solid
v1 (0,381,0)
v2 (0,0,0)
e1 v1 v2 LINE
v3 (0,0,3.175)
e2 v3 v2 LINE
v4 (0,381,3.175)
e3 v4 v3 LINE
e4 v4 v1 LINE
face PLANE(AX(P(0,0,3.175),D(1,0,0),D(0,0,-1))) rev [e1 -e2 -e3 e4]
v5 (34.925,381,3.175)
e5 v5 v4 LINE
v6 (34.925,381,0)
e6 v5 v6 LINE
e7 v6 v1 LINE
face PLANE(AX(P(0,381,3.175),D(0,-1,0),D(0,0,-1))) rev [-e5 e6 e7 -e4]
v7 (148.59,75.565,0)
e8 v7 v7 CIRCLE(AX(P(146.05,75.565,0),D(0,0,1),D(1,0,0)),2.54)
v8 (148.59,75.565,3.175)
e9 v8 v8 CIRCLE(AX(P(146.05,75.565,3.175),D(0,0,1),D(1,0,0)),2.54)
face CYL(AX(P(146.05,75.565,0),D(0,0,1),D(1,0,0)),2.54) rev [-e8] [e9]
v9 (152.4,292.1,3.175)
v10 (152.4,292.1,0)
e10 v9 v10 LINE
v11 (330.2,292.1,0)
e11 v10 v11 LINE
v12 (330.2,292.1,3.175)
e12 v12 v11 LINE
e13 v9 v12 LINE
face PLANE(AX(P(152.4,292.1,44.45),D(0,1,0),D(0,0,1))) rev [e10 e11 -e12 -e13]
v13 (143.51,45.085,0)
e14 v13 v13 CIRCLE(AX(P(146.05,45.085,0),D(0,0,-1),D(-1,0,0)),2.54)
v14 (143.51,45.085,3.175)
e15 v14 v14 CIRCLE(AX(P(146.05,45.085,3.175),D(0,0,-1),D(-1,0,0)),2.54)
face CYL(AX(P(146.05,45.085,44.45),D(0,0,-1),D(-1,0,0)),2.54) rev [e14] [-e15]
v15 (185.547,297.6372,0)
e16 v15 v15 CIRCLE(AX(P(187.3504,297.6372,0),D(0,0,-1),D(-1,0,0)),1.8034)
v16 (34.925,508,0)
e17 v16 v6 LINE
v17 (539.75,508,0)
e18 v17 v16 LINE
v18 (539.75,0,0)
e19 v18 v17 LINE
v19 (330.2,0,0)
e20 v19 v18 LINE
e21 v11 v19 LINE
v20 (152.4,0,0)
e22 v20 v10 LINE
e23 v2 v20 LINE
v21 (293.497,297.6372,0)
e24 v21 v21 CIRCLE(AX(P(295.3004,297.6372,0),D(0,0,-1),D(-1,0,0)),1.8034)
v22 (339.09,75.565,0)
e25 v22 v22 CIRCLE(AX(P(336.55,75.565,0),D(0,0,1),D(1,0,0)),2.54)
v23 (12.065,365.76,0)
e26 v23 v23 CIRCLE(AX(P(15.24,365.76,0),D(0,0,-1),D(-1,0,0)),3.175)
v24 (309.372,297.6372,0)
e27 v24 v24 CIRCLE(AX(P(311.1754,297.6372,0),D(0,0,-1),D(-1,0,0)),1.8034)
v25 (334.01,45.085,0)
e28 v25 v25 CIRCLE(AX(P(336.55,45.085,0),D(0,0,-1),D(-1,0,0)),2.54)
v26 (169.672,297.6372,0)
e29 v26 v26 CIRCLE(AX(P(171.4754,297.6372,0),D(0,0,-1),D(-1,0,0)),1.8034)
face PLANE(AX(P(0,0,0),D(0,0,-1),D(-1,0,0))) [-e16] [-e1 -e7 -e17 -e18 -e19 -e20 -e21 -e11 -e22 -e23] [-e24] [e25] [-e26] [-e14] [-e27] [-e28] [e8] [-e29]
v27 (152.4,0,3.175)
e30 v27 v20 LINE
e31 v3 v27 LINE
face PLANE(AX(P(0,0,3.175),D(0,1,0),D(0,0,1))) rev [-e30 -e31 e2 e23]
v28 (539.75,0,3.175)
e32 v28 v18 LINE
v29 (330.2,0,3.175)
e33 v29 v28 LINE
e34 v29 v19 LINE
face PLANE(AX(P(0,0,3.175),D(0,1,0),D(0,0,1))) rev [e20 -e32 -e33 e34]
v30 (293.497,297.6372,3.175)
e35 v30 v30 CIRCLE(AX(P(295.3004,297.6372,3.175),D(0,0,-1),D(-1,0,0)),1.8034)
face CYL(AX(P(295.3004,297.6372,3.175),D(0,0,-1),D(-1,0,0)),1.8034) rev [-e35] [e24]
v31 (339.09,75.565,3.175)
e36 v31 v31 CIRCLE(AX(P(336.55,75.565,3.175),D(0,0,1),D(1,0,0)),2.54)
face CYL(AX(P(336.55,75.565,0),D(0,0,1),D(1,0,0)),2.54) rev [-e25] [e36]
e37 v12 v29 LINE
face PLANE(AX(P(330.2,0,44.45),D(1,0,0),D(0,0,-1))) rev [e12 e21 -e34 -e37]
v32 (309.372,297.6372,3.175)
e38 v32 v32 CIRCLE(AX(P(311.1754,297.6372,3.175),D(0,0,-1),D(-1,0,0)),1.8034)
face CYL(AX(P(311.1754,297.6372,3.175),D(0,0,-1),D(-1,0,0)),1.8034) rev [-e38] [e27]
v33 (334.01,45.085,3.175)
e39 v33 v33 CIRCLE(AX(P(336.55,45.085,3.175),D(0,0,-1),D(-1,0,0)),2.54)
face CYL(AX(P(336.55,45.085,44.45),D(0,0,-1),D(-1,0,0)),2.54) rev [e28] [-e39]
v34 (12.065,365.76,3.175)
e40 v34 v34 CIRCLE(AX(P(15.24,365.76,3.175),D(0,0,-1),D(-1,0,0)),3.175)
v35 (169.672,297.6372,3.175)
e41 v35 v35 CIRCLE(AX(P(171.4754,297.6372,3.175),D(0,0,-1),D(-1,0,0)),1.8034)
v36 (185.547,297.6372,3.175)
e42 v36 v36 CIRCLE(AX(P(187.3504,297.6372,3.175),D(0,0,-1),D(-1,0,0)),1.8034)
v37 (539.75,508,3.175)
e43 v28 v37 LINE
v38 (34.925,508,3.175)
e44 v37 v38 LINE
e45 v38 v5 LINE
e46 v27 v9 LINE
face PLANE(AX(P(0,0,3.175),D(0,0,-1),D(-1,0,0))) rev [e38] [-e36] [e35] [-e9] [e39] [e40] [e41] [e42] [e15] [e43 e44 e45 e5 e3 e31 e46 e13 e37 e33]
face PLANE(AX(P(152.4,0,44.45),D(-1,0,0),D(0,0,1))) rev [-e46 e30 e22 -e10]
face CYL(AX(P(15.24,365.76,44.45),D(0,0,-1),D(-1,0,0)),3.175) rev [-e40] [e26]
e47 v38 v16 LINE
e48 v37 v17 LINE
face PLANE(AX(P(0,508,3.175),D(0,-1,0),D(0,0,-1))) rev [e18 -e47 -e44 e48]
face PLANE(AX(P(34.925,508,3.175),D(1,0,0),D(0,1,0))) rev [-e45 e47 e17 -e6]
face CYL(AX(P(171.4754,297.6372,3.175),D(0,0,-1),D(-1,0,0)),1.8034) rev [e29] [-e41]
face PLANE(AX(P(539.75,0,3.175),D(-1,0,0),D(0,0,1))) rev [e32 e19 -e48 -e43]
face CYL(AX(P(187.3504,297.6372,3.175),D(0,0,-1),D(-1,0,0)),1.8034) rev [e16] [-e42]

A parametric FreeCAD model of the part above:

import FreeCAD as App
import Part
import Sketcher

V = App.Vector
Q = App.Units.Quantity

doc = App.newDocument("Part")
body = doc.addObject("PartDesign::Body", "Body")

sketch1 = doc.addObject("Sketcher::SketchObject", "Sketch")
body.addObject(sketch1)
sketch1.AttachmentSupport = (doc.XY_Plane, [""])
sketch1.MapMode = "FlatFace"
sketch1.addGeometry([
    Part.LineSegment(V(0, 508, 0), V(0, 0, 0)),
    Part.LineSegment(V(0, 0, 0), V(540, 0, 0)),
    Part.LineSegment(V(540, 0, 0), V(540, 508, 0)),
    Part.LineSegment(V(540, 508, 0), V(0, 508, 0)),
], False)
sketch1.addConstraint([
    Sketcher.Constraint("Coincident", 0, 2, 1, 1),
    Sketcher.Constraint("Coincident", 1, 2, 2, 1),
    Sketcher.Constraint("Coincident", 2, 2, 3, 1),
    Sketcher.Constraint("Coincident", 3, 2, 0, 1),
    Sketcher.Constraint("Vertical", 0),
    Sketcher.Constraint("Horizontal", 1),
    Sketcher.Constraint("Vertical", 2),
    Sketcher.Constraint("Horizontal", 3),
    Sketcher.Constraint("Coincident", 0, 2, -1, 1),
    Sketcher.Constraint("DistanceY", 0, 2, 0, 1, Q("20 in")),
    Sketcher.Constraint("DistanceX", 1, 1, 1, 2, Q("21.25 in")),
])
pad1 = doc.addObject("PartDesign::Pad", "Pad")
body.addObject(pad1)
pad1.Profile = sketch1
pad1.Length = Q("0.125 in")

sketch2 = doc.addObject("Sketcher::SketchObject", "Sketch001")
body.addObject(sketch2)
sketch2.AttachmentSupport = (doc.XY_Plane, [""])
sketch2.MapMode = "FlatFace"
sketch2.addGeometry([
    Part.Circle(V(336.6, 45.1, 0), V(0, 0, 1), 2.5),
    Part.Circle(V(146.1, 45.1, 0), V(0, 0, 1), 2.5),
    Part.Circle(V(15.2, 365.8, 0), V(0, 0, 1), 3.2),
    Part.LineSegment(V(330.2, 292.1, 0), V(330.2, 0, 0)),
    Part.LineSegment(V(330.2, 0, 0), V(152.4, 0, 0)),
    Part.LineSegment(V(152.4, 0, 0), V(152.4, 292.1, 0)),
    Part.LineSegment(V(152.4, 292.1, 0), V(330.2, 292.1, 0)),
], False)
sketch2.addConstraint([
    Sketcher.Constraint("Coincident", 3, 2, 4, 1),
    Sketcher.Constraint("Coincident", 4, 2, 5, 1),
    Sketcher.Constraint("Coincident", 5, 2, 6, 1),
    Sketcher.Constraint("Coincident", 6, 2, 3, 1),
    Sketcher.Constraint("Vertical", 3),
    Sketcher.Constraint("Horizontal", 4),
    Sketcher.Constraint("Vertical", 5),
    Sketcher.Constraint("Horizontal", 6),
    Sketcher.Constraint("Equal", 0, 1),
    Sketcher.Constraint("PointOnObject", 3, 2, -1),
    Sketcher.Constraint("Horizontal", 0, 3, 1, 3),
    Sketcher.Constraint("Diameter", 0, Q("0.2 in")),
    Sketcher.Constraint("Diameter", 2, Q("0.25 in")),
    Sketcher.Constraint("DistanceX", 4, 2, 4, 1, Q("7 in")),
    Sketcher.Constraint("DistanceY", 3, 2, 3, 1, Q("11.5 in")),
    Sketcher.Constraint("DistanceX", -1, 1, 3, 2, Q("13 in")),
    Sketcher.Constraint("DistanceX", -1, 1, 2, 3, Q("0.6 in")),
    Sketcher.Constraint("DistanceY", -1, 1, 2, 3, Q("14.4 in")),
    Sketcher.Constraint("DistanceX", 1, 3, 0, 3, Q("7.5 in")),
    Sketcher.Constraint("DistanceX", -1, 1, 0, 3, Q("13.25 in")),
    Sketcher.Constraint("DistanceY", -1, 1, 0, 3, Q("1.775 in")),
])
pocket1 = doc.addObject("PartDesign::Pocket", "Pocket")
body.addObject(pocket1)
pocket1.Profile = sketch2
pocket1.Length = Q("1.75 in")
pocket1.Reversed = True

sketch3 = doc.addObject("Sketcher::SketchObject", "Sketch002")
body.addObject(sketch3)
sketch3.AttachmentSupport = (doc.XY_Plane, [""])
sketch3.MapMode = "FlatFace"
sketch3.addGeometry([
    Part.LineSegment(V(35, 508, 0), V(35, 381, 0)),
    Part.LineSegment(V(35, 381, 0), V(0, 381, 0)),
    Part.LineSegment(V(0, 381, 0), V(0, 508, 0)),
    Part.LineSegment(V(0, 508, 0), V(35, 508, 0)),
], False)
sketch3.addConstraint([
    Sketcher.Constraint("Coincident", 0, 2, 1, 1),
    Sketcher.Constraint("Coincident", 1, 2, 2, 1),
    Sketcher.Constraint("Coincident", 2, 2, 3, 1),
    Sketcher.Constraint("Coincident", 3, 2, 0, 1),
    Sketcher.Constraint("Vertical", 0),
    Sketcher.Constraint("Horizontal", 1),
    Sketcher.Constraint("Vertical", 2),
    Sketcher.Constraint("Horizontal", 3),
    Sketcher.Constraint("PointOnObject", 1, 2, -2),
    Sketcher.Constraint("DistanceY", 0, 2, 0, 1, Q("5 in")),
    Sketcher.Constraint("DistanceY", -1, 1, 0, 2, Q("15 in")),
    Sketcher.Constraint("DistanceX", 1, 2, 1, 1, Q("1.375 in")),
])
pocket2 = doc.addObject("PartDesign::Pocket", "Pocket001")
body.addObject(pocket2)
pocket2.Profile = sketch3
pocket2.Type = "ThroughAll"
pocket2.Reversed = True

sketch4 = doc.addObject("Sketcher::SketchObject", "Sketch003")
body.addObject(sketch4)
sketch4.AttachmentSupport = (doc.XY_Plane, [""])
sketch4.MapMode = "FlatFace"
sketch4.addGeometry([
    Part.Circle(V(311.2, 297.6, 0), V(0, 0, 1), 1.8),
    Part.Circle(V(295.3, 297.6, 0), V(0, 0, 1), 1.8),
    Part.Circle(V(187.4, 297.6, 0), V(0, 0, 1), 1.8),
    Part.Circle(V(171.5, 297.6, 0), V(0, 0, 1), 1.8),
], False)
sketch4.addConstraint([
    Sketcher.Constraint("Equal", 0, 1),
    Sketcher.Constraint("Equal", 1, 2),
    Sketcher.Constraint("Equal", 2, 3),
    Sketcher.Constraint("Horizontal", 0, 3, 1, 3),
    Sketcher.Constraint("Horizontal", 1, 3, 2, 3),
    Sketcher.Constraint("Horizontal", 2, 3, 3, 3),
    Sketcher.Constraint("Diameter", 0, Q("0.142 in")),
    Sketcher.Constraint("DistanceX", 3, 3, 0, 3, Q("5.5 in")),
    Sketcher.Constraint("DistanceX", 2, 3, 1, 3, Q("4.25 in")),
    Sketcher.Constraint("DistanceX", -1, 1, 0, 3, Q("12.251 in")),
    Sketcher.Constraint("DistanceY", -1, 1, 0, 3, Q("11.718 in")),
    Sketcher.Constraint("DistanceX", -1, 1, 1, 3, Q("11.626 in")),
])
pocket3 = doc.addObject("PartDesign::Pocket", "Pocket002")
body.addObject(pocket3)
pocket3.Profile = sketch4
pocket3.Type = "ThroughAll"
pocket3.Reversed = True

sketch5 = doc.addObject("Sketcher::SketchObject", "Sketch004")
body.addObject(sketch5)
sketch5.AttachmentSupport = (doc.XY_Plane, [""])
sketch5.MapMode = "FlatFace"
sketch5.AttachmentOffset = App.Placement(V(0, 0, 0.125 * 25.4), App.Rotation())
sketch5.addGeometry(Part.Circle(V(146.1, 75.6, 0), V(0, 0, 1), 2.5), False)
sketch5.addConstraint([
    Sketcher.Constraint("Diameter", 0, Q("0.2 in")),
    Sketcher.Constraint("DistanceX", -1, 1, 0, 3, Q("5.75 in")),
    Sketcher.Constraint("DistanceY", -1, 1, 0, 3, Q("2.975 in")),
])
pocket4 = doc.addObject("PartDesign::Pocket", "Pocket003")
body.addObject(pocket4)
pocket4.Profile = sketch5
pocket4.Type = "ThroughAll"

sketch6 = doc.addObject("Sketcher::SketchObject", "Sketch005")
body.addObject(sketch6)
sketch6.AttachmentSupport = (doc.XY_Plane, [""])
sketch6.MapMode = "FlatFace"
sketch6.AttachmentOffset = App.Placement(V(0, 0, 0.125 * 25.4), App.Rotation())
sketch6.addGeometry(Part.Circle(V(336.6, 75.6, 0), V(0, 0, 1), 2.5), False)
sketch6.addConstraint([
    Sketcher.Constraint("Diameter", 0, Q("0.2 in")),
    Sketcher.Constraint("DistanceX", -1, 1, 0, 3, Q("13.25 in")),
    Sketcher.Constraint("DistanceY", -1, 1, 0, 3, Q("2.975 in")),
])
pocket5 = doc.addObject("PartDesign::Pocket", "Pocket004")
body.addObject(pocket5)
pocket5.Profile = sketch6
pocket5.Type = "ThroughAll"

doc.recompute()
